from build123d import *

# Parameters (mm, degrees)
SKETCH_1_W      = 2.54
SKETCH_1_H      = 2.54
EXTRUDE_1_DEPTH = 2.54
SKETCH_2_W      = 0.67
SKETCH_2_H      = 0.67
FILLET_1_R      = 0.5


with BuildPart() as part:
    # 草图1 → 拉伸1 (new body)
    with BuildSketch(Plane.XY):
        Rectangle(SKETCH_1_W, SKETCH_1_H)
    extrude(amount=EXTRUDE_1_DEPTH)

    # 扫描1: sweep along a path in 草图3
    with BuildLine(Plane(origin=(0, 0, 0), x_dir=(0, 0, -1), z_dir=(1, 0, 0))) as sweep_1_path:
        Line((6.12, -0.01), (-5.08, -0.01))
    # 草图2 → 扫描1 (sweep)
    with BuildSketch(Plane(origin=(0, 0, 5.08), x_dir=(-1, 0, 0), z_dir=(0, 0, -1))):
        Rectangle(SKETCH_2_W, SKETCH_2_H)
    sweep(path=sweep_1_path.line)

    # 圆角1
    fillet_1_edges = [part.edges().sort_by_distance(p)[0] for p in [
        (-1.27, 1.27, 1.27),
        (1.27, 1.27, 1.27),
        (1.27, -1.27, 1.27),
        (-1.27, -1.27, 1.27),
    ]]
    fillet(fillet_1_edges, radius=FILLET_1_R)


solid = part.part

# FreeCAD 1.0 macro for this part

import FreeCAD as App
import Part
import Sketcher
from FreeCAD import Vector
Q = App.Units.Quantity


def edges_at(feature, points):
    """Names of the edges that pass closest to the given points."""
    edges = feature.Shape.Edges
    near = lambda p: min(range(len(edges)), key=lambda i: edges[i].distToShape(Part.Vertex(*p))[0])
    return sorted({f"Edge{near(p) + 1}" for p in points})

doc = App.newDocument("Part")
params = doc.addObject("Spreadsheet::Sheet", "Params")
for row, (alias, value) in enumerate([
    ("sketch1_width", "2.54 mm"),
    ("pad1_length", "2.54 mm"),
    ("sketch2_width", "0.67 mm"),
    ("sketch3_height", "11.2 mm"),
    ("fillet_radius", "0.5 mm"),
], start=1):
    params.set(f"A{row}", alias)
    params.set(f"B{row}", "=" + value)
    params.setAlias(f"B{row}", alias)

body = doc.addObject("PartDesign::Body", "Body")

sketch1 = doc.addObject("Sketcher::SketchObject", "Sketch")
body.addObject(sketch1)
sketch1.AttachmentSupport = (doc.XY_Plane, [""])
sketch1.MapMode = "FlatFace"
sketch1.addGeometry(Part.LineSegment(Vector(-1.27, 1.27, 0), Vector(-1.27, -1.27, 0)), False)
sketch1.addGeometry(Part.LineSegment(Vector(-1.27, -1.27, 0), Vector(1.27, -1.27, 0)), False)
sketch1.addGeometry(Part.LineSegment(Vector(1.27, -1.27, 0), Vector(1.27, 1.27, 0)), False)
sketch1.addGeometry(Part.LineSegment(Vector(1.27, 1.27, 0), Vector(-1.27, 1.27, 0)), False)
sketch1.addConstraint(Sketcher.Constraint("Coincident", 0, 2, 1, 1))
sketch1.addConstraint(Sketcher.Constraint("Coincident", 1, 2, 2, 1))
sketch1.addConstraint(Sketcher.Constraint("Coincident", 2, 2, 3, 1))
sketch1.addConstraint(Sketcher.Constraint("Coincident", 3, 2, 0, 1))
sketch1.addConstraint(Sketcher.Constraint("Vertical", 0))
sketch1.addConstraint(Sketcher.Constraint("Horizontal", 1))
sketch1.addConstraint(Sketcher.Constraint("Vertical", 2))
sketch1.addConstraint(Sketcher.Constraint("Horizontal", 3))
sketch1.addConstraint(Sketcher.Constraint("Symmetric", 0, 2, 2, 2, -1, 1))
sketch1.addConstraint(Sketcher.Constraint("Equal", 3, 0))
sketch1.addConstraint(Sketcher.Constraint("DistanceX", 1, 1, 1, 2, Q("2.54 mm")))
sketch1.setExpression("Constraints[10]", "Params.sketch1_width")
pad1 = doc.addObject("PartDesign::Pad", "Pad")
body.addObject(pad1)
pad1.Profile = sketch1
pad1.setExpression("Length", "Params.pad1_length")

sketch2 = doc.addObject("Sketcher::SketchObject", "Sketch001")
body.addObject(sketch2)
sketch2.AttachmentSupport = (doc.XY_Plane, [""])
sketch2.MapMode = "FlatFace"
sketch2.AttachmentOffset = App.Placement(Vector(0, 0, 5.08), App.Rotation())
sketch2.addGeometry(Part.LineSegment(Vector(0.335, 0.335, 0), Vector(0.335, -0.335, 0)), False)
sketch2.addGeometry(Part.LineSegment(Vector(0.335, -0.335, 0), Vector(-0.335, -0.335, 0)), False)
sketch2.addGeometry(Part.LineSegment(Vector(-0.335, -0.335, 0), Vector(-0.335, 0.335, 0)), False)
sketch2.addGeometry(Part.LineSegment(Vector(-0.335, 0.335, 0), Vector(0.335, 0.335, 0)), False)
sketch2.addConstraint(Sketcher.Constraint("Coincident", 0, 2, 1, 1))
sketch2.addConstraint(Sketcher.Constraint("Coincident", 1, 2, 2, 1))
sketch2.addConstraint(Sketcher.Constraint("Coincident", 2, 2, 3, 1))
sketch2.addConstraint(Sketcher.Constraint("Coincident", 3, 2, 0, 1))
sketch2.addConstraint(Sketcher.Constraint("Vertical", 0))
sketch2.addConstraint(Sketcher.Constraint("Horizontal", 1))
sketch2.addConstraint(Sketcher.Constraint("Vertical", 2))
sketch2.addConstraint(Sketcher.Constraint("Horizontal", 3))
sketch2.addConstraint(Sketcher.Constraint("Symmetric", 0, 2, 2, 2, -1, 1))
sketch2.addConstraint(Sketcher.Constraint("Equal", 3, 0))
sketch2.addConstraint(Sketcher.Constraint("DistanceX", 1, 2, 1, 1, Q("0.67 mm")))
sketch2.setExpression("Constraints[10]", "Params.sketch2_width")

sketch3 = doc.addObject("Sketcher::SketchObject", "Sketch002")
body.addObject(sketch3)
sketch3.AttachmentSupport = (doc.XZ_Plane, [""])
sketch3.MapMode = "FlatFace"
sketch3.AttachmentOffset = App.Placement(Vector(0, 0, 0.01), App.Rotation())
sketch3.addGeometry(Part.LineSegment(Vector(0, -6.12, 0), Vector(0, 5.08, 0)), False)
sketch3.addConstraint(Sketcher.Constraint("Vertical", 0))
sketch3.addConstraint(Sketcher.Constraint("PointOnObject", 0, 1, -2))
sketch3.addConstraint(Sketcher.Constraint("DistanceY", 0, 1, 0, 2, Q("11.2 mm")))
sketch3.addConstraint(Sketcher.Constraint("DistanceY", 0, 1, -1, 1, Q("6.12 mm")))
sketch3.setExpression("Constraints[2]", "Params.sketch3_height")
doc.recompute()

additivepipe = doc.addObject("PartDesign::AdditivePipe", "AdditivePipe")
body.addObject(additivepipe)
additivepipe.Profile = sketch2
additivepipe.Spine = (sketch3, ["Edge1"])
doc.recompute()

fillet = doc.addObject("PartDesign::Fillet", "Fillet")
body.addObject(fillet)
fillet.Base = (additivepipe, edges_at(additivepipe, [
    (-1.27, 1.27, 1.27),
    (1.27, 1.27, 1.27),
    (1.27, -1.27, 1.27),
    (-1.27, -1.27, 1.27),
]))
fillet.setExpression("Radius", "Params.fillet_radius")

doc.recompute()
